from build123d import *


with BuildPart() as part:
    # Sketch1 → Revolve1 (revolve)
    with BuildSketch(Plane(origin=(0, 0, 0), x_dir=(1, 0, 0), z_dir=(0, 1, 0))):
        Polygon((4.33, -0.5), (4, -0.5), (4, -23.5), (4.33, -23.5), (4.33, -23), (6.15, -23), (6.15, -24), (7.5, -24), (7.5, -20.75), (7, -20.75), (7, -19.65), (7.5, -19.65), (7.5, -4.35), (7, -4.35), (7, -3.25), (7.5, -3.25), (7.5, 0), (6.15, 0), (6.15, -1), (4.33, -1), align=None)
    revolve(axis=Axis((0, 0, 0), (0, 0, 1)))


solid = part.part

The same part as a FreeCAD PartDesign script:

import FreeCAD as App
import Part
import Sketcher

doc = App.newDocument("Part")
body = doc.addObject("PartDesign::Body", "Body")

sketch1 = body.newObject("Sketcher::SketchObject", "Sketch")
sketch1.AttachmentSupport = (doc.getObject("XZ_Plane"), [""])
sketch1.MapMode = "FlatFace"
sketch1.addGeometry(Part.LineSegment(App.Vector(4.33, 0.5, 0), App.Vector(4, 0.5, 0)), False)
sketch1.addGeometry(Part.LineSegment(App.Vector(4, 0.5, 0), App.Vector(4, 23.5, 0)), False)
sketch1.addGeometry(Part.LineSegment(App.Vector(4, 23.5, 0), App.Vector(4.33, 23.5, 0)), False)
sketch1.addGeometry(Part.LineSegment(App.Vector(4.33, 23.5, 0), App.Vector(4.33, 23, 0)), False)
sketch1.addGeometry(Part.LineSegment(App.Vector(4.33, 23, 0), App.Vector(6.15, 23, 0)), False)
sketch1.addGeometry(Part.LineSegment(App.Vector(6.15, 23, 0), App.Vector(6.15, 24, 0)), False)
sketch1.addGeometry(Part.LineSegment(App.Vector(6.15, 24, 0), App.Vector(7.5, 24, 0)), False)
sketch1.addGeometry(Part.LineSegment(App.Vector(7.5, 24, 0), App.Vector(7.5, 20.75, 0)), False)
sketch1.addGeometry(Part.LineSegment(App.Vector(7.5, 20.75, 0), App.Vector(7, 20.75, 0)), False)
sketch1.addGeometry(Part.LineSegment(App.Vector(7, 20.75, 0), App.Vector(7, 19.65, 0)), False)
sketch1.addGeometry(Part.LineSegment(App.Vector(7, 19.65, 0), App.Vector(7.5, 19.65, 0)), False)
sketch1.addGeometry(Part.LineSegment(App.Vector(7.5, 19.65, 0), App.Vector(7.5, 4.35, 0)), False)
sketch1.addGeometry(Part.LineSegment(App.Vector(7.5, 4.35, 0), App.Vector(7, 4.35, 0)), False)
sketch1.addGeometry(Part.LineSegment(App.Vector(7, 4.35, 0), App.Vector(7, 3.25, 0)), False)
sketch1.addGeometry(Part.LineSegment(App.Vector(7, 3.25, 0), App.Vector(7.5, 3.25, 0)), False)
sketch1.addGeometry(Part.LineSegment(App.Vector(7.5, 3.25, 0), App.Vector(7.5, 0, 0)), False)
sketch1.addGeometry(Part.LineSegment(App.Vector(7.5, 0, 0), App.Vector(6.15, 0, 0)), False)
sketch1.addGeometry(Part.LineSegment(App.Vector(6.15, 0, 0), App.Vector(6.15, 1, 0)), False)
sketch1.addGeometry(Part.LineSegment(App.Vector(6.15, 1, 0), App.Vector(4.33, 1, 0)), False)
sketch1.addGeometry(Part.LineSegment(App.Vector(4.33, 1, 0), App.Vector(4.33, 0.5, 0)), False)
sketch1.addConstraint(Sketcher.Constraint("Coincident", 0, 2, 1, 1))
sketch1.addConstraint(Sketcher.Constraint("Coincident", 1, 2, 2, 1))
sketch1.addConstraint(Sketcher.Constraint("Coincident", 2, 2, 3, 1))
sketch1.addConstraint(Sketcher.Constraint("Coincident", 3, 2, 4, 1))
sketch1.addConstraint(Sketcher.Constraint("Coincident", 4, 2, 5, 1))
sketch1.addConstraint(Sketcher.Constraint("Coincident", 5, 2, 6, 1))
sketch1.addConstraint(Sketcher.Constraint("Coincident", 6, 2, 7, 1))
sketch1.addConstraint(Sketcher.Constraint("Coincident", 7, 2, 8, 1))
sketch1.addConstraint(Sketcher.Constraint("Coincident", 8, 2, 9, 1))
sketch1.addConstraint(Sketcher.Constraint("Coincident", 9, 2, 10, 1))
sketch1.addConstraint(Sketcher.Constraint("Coincident", 10, 2, 11, 1))
sketch1.addConstraint(Sketcher.Constraint("Coincident", 11, 2, 12, 1))
sketch1.addConstraint(Sketcher.Constraint("Coincident", 12, 2, 13, 1))
sketch1.addConstraint(Sketcher.Constraint("Coincident", 13, 2, 14, 1))
sketch1.addConstraint(Sketcher.Constraint("Coincident", 14, 2, 15, 1))
sketch1.addConstraint(Sketcher.Constraint("Coincident", 15, 2, 16, 1))
sketch1.addConstraint(Sketcher.Constraint("Coincident", 16, 2, 17, 1))
sketch1.addConstraint(Sketcher.Constraint("Coincident", 17, 2, 18, 1))
sketch1.addConstraint(Sketcher.Constraint("Coincident", 18, 2, 19, 1))
sketch1.addConstraint(Sketcher.Constraint("Coincident", 19, 2, 0, 1))
sketch1.addConstraint(Sketcher.Constraint("Horizontal", 0))
sketch1.addConstraint(Sketcher.Constraint("Vertical", 1))
sketch1.addConstraint(Sketcher.Constraint("Horizontal", 2))
sketch1.addConstraint(Sketcher.Constraint("Vertical", 3))
sketch1.addConstraint(Sketcher.Constraint("Horizontal", 4))
sketch1.addConstraint(Sketcher.Constraint("Vertical", 5))
sketch1.addConstraint(Sketcher.Constraint("Horizontal", 6))
sketch1.addConstraint(Sketcher.Constraint("Vertical", 7))
sketch1.addConstraint(Sketcher.Constraint("Horizontal", 8))
sketch1.addConstraint(Sketcher.Constraint("Vertical", 9))
sketch1.addConstraint(Sketcher.Constraint("Horizontal", 10))
sketch1.addConstraint(Sketcher.Constraint("Vertical", 11))
sketch1.addConstraint(Sketcher.Constraint("Horizontal", 12))
sketch1.addConstraint(Sketcher.Constraint("Vertical", 13))
sketch1.addConstraint(Sketcher.Constraint("Horizontal", 14))
sketch1.addConstraint(Sketcher.Constraint("Vertical", 15))
sketch1.addConstraint(Sketcher.Constraint("Horizontal", 16))
sketch1.addConstraint(Sketcher.Constraint("Vertical", 17))
sketch1.addConstraint(Sketcher.Constraint("Horizontal", 18))
sketch1.addConstraint(Sketcher.Constraint("Vertical", 19))
sketch1.addConstraint(Sketcher.Constraint("PointOnObject", 15, 2, -1))
sketch1.addConstraint(Sketcher.Constraint("Vertical", 7, 2, 10, 2))
sketch1.addConstraint(Sketcher.Constraint("Vertical", 9, 2, 12, 2))
sketch1.addConstraint(Sketcher.Constraint("Vertical", 11, 2, 14, 2))
sketch1.addConstraint(Sketcher.Constraint("Vertical", 5, 2, 16, 2))
sketch1.addConstraint(Sketcher.Constraint("Vertical", 3, 2, 18, 2))
sketch1.addConstraint(Sketcher.Constraint("Equal", 14, 3))
sketch1.addConstraint(Sketcher.Constraint("Equal", 9, 13))
sketch1.addConstraint(Sketcher.Constraint("Equal", 7, 15))
sketch1.addConstraint(Sketcher.Constraint("Equal", 5, 17))
sketch1.addConstraint(Sketcher.Constraint("Equal", 3, 19))
sketch1.addConstraint(Sketcher.Constraint("DistanceY", 1, 1, 1, 2, 23.0))
sketch1.addConstraint(Sketcher.Constraint("DistanceY", 5, 1, 5, 2, 1.0))
sketch1.addConstraint(Sketcher.Constraint("DistanceX", 8, 2, 8, 1, 0.5))
sketch1.addConstraint(Sketcher.Constraint("DistanceY", 9, 2, 9, 1, 1.1))
sketch1.addConstraint(Sketcher.Constraint("DistanceY", 11, 2, 11, 1, 15.3))
sketch1.addConstraint(Sketcher.Constraint("DistanceX", -1, 1, 0, 2, 4.0))
sketch1.addConstraint(Sketcher.Constraint("DistanceX", -1, 1, 8, 2, 7.0))
sketch1.addConstraint(Sketcher.Constraint("DistanceX", 0, 2, 0, 1, 0.33))
sketch1.addConstraint(Sketcher.Constraint("DistanceX", 4, 1, 4, 2, 1.82))
revolution = body.newObject("PartDesign::Revolution", "Revolution")
revolution.Profile = sketch1
revolution.ReferenceAxis = (sketch1, ["V_Axis"])
revolution.Angle = 360

doc.recompute()
